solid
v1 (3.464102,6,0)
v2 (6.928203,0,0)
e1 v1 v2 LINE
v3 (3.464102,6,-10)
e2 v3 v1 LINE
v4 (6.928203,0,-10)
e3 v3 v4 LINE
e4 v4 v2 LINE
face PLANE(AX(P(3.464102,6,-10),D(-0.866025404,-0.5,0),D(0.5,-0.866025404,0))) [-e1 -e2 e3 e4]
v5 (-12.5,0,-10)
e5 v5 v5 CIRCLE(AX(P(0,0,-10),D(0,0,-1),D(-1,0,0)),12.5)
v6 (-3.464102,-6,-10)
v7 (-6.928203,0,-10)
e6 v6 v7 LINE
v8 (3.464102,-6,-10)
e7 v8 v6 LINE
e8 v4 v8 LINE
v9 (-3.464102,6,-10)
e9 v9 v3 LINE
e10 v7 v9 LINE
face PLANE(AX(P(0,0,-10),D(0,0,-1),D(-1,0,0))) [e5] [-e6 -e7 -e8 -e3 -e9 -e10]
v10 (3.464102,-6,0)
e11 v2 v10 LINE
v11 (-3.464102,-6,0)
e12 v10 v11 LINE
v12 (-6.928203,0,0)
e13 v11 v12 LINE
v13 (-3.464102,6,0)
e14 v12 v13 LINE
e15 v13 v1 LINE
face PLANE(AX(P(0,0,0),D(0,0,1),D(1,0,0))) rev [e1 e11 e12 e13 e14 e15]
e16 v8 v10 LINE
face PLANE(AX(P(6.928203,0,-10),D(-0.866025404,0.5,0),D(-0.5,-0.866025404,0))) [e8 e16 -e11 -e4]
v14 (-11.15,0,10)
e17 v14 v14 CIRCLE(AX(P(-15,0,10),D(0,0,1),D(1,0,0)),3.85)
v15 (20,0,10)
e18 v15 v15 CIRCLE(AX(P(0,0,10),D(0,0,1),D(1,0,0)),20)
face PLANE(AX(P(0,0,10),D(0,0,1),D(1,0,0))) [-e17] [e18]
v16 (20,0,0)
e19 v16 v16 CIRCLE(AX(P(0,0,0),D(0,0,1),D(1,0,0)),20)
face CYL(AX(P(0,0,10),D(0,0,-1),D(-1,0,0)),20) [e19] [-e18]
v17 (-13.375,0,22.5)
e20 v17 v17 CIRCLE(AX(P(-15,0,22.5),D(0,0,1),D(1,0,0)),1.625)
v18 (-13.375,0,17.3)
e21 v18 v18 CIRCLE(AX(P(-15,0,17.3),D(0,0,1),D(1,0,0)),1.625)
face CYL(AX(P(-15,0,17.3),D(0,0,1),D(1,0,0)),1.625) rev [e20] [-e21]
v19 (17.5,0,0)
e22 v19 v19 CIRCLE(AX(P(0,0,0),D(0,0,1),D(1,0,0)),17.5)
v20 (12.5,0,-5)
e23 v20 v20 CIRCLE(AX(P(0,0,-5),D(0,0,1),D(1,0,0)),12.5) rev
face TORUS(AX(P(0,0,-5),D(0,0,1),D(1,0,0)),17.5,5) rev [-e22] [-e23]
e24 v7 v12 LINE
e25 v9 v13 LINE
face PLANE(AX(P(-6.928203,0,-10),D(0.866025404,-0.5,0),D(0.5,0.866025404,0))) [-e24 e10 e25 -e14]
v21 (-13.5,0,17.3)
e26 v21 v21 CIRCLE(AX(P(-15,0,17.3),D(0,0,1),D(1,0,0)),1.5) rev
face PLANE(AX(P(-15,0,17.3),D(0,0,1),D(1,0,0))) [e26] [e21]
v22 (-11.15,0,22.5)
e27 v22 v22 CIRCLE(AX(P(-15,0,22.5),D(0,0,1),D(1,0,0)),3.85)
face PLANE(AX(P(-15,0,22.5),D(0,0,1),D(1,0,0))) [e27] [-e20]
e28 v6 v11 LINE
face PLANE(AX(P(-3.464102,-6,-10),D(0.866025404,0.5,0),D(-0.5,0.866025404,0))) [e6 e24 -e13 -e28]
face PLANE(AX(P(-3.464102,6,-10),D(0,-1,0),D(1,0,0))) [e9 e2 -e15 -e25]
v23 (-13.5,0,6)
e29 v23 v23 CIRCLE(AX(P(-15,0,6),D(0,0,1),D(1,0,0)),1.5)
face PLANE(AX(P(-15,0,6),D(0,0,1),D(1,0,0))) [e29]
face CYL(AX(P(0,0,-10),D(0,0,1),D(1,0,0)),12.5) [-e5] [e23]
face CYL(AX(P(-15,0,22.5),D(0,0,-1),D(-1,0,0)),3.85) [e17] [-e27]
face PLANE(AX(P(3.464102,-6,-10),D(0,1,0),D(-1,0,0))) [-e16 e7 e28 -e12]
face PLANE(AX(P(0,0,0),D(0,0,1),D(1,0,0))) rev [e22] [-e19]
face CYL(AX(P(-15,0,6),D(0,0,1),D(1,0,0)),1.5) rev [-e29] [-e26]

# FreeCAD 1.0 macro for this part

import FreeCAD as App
import Part
import Sketcher
Q = App.Units.Quantity


def edges_at(feature, points):
    """Names of the edges that pass closest to the given points."""
    edges = feature.Shape.Edges
    near = lambda p: min(range(len(edges)), key=lambda i: edges[i].distToShape(Part.Vertex(*p))[0])
    return sorted({f"Edge{near(p) + 1}" for p in points})


def add_polygon(sketch, points):
    """Adds a closed chain of lines whose ends are joined by coincident constraints."""
    first, n = sketch.GeometryCount, len(points)
    for a, b in zip(points, points[1:] + points[:1]):
        sketch.addGeometry(Part.LineSegment(App.Vector(*a, 0), App.Vector(*b, 0)), False)
    for i in range(n):
        sketch.addConstraint(Sketcher.Constraint("Coincident", first + i, 2, first + (i + 1) % n, 1))

doc = App.newDocument("Part")
body = doc.addObject("PartDesign::Body", "Body")

# Sketch on XY plane
sketch1 = body.newObject("Sketcher::SketchObject", "Sketch")
sketch1.AttachmentSupport = (doc.getObject("XY_Plane"), [""])
sketch1.MapMode = "FlatFace"
sketch1.addGeometry(Part.Circle(App.Vector(0, 0, 0), App.Vector(0, 0, 1), 20), False)
sketch1.addConstraint(Sketcher.Constraint("Coincident", 0, 3, -1, 1))
sketch1.addConstraint(Sketcher.Constraint("Diameter", 0, Q("40 mm")))
pad1 = body.newObject("PartDesign::Pad", "Pad")
pad1.Profile = sketch1
pad1.Length = 10

# Sketch on XY plane
sketch2 = body.newObject("Sketcher::SketchObject", "Sketch001")
sketch2.AttachmentSupport = (doc.getObject("XY_Plane"), [""])
sketch2.MapMode = "FlatFace"
sketch2.AttachmentOffset = App.Placement(App.Vector(0, 0, 10), App.Rotation())
sketch2.addGeometry(Part.Circle(App.Vector(-15, 0, 0), App.Vector(0, 0, 1), 3.9), False)
sketch2.addConstraint(Sketcher.Constraint("PointOnObject", 0, 3, -1))
sketch2.addConstraint(Sketcher.Constraint("Diameter", 0, Q("7.7 mm")))
sketch2.addConstraint(Sketcher.Constraint("DistanceX", 0, 3, -1, 1, Q("15 mm")))
pad2 = body.newObject("PartDesign::Pad", "Pad001")
pad2.Profile = sketch2
pad2.Length = 12.5

# Sketch on XY plane
sketch3 = body.newObject("Sketcher::SketchObject", "Sketch002")
sketch3.AttachmentSupport = (doc.getObject("XY_Plane"), [""])
sketch3.MapMode = "FlatFace"
sketch3.addGeometry(Part.Circle(App.Vector(0, 0, 0), App.Vector(0, 0, 1), 12), False)  # 0
add_polygon(sketch3, [(3, 6), (-3, 6), (-7, 0), (-3, -6), (3, -6), (7, 0)])  # lines 1-6
sketch3.addConstraint(Sketcher.Constraint("Horizontal", 1))
sketch3.addConstraint(Sketcher.Constraint("Horizontal", 4))
sketch3.addConstraint(Sketcher.Constraint("Coincident", 0, 3, -1, 1))
sketch3.addConstraint(Sketcher.Constraint("Symmetric", 1, 2, 4, 2, -1, 1))
sketch3.addConstraint(Sketcher.Constraint("Symmetric", 2, 2, 5, 2, -1, 1))
sketch3.addConstraint(Sketcher.Constraint("PointOnObject", 2, 2, -1))
sketch3.addConstraint(Sketcher.Constraint("Parallel", 3, 6))
sketch3.addConstraint(Sketcher.Constraint("Vertical", 1, 2, 3, 2))
sketch3.addConstraint(Sketcher.Constraint("Diameter", 0, Q("25 mm")))
sketch3.addConstraint(Sketcher.Constraint("Angle", 2, Q("-120 deg")))
sketch3.addConstraint(Sketcher.Constraint("DistanceY", -1, 1, 1, 2, Q("6 mm")))
sketch3.addConstraint(Sketcher.Constraint("DistanceX", 1, 2, -1, 1, Q("3.464102 mm")))
pad3 = body.newObject("PartDesign::Pad", "Pad002")
pad3.Profile = sketch3
pad3.Length = 10
pad3.Reversed = True

# Sketch on XY plane
sketch4 = body.newObject("Sketcher::SketchObject", "Sketch003")
sketch4.AttachmentSupport = (doc.getObject("XY_Plane"), [""])
sketch4.MapMode = "FlatFace"
sketch4.AttachmentOffset = App.Placement(App.Vector(0, 0, 22.5), App.Rotation())
sketch4.addGeometry(Part.Circle(App.Vector(-15, 0, 0), App.Vector(0, 0, 1), 1.5), False)
sketch4.addConstraint(Sketcher.Constraint("PointOnObject", 0, 3, -1))
sketch4.addConstraint(Sketcher.Constraint("Diameter", 0, Q("3 mm")))
sketch4.addConstraint(Sketcher.Constraint("DistanceX", 0, 3, -1, 1, Q("15 mm")))
pocket1 = body.newObject("PartDesign::Pocket", "Pocket")
pocket1.Profile = sketch4
pocket1.Length = 16.5

# Sketch on XY plane
sketch5 = body.newObject("Sketcher::SketchObject", "Sketch004")
sketch5.AttachmentSupport = (doc.getObject("XY_Plane"), [""])
sketch5.MapMode = "FlatFace"
sketch5.AttachmentOffset = App.Placement(App.Vector(0, 0, 22.5), App.Rotation())
sketch5.addGeometry(Part.Circle(App.Vector(-15, 0, 0), App.Vector(0, 0, 1), 1.6), False)
sketch5.addConstraint(Sketcher.Constraint("PointOnObject", 0, 3, -1))
sketch5.addConstraint(Sketcher.Constraint("Diameter", 0, Q("3.25 mm")))
sketch5.addConstraint(Sketcher.Constraint("DistanceX", 0, 3, -1, 1, Q("15 mm")))
pocket2 = body.newObject("PartDesign::Pocket", "Pocket001")
pocket2.Profile = sketch5
pocket2.Length = 5.2
doc.recompute()

fillet = body.newObject("PartDesign::Fillet", "Fillet")
fillet.Base = (pocket2, edges_at(pocket2, [(-12.5, 0, 0)]))
fillet.Radius = 5

doc.recompute()
